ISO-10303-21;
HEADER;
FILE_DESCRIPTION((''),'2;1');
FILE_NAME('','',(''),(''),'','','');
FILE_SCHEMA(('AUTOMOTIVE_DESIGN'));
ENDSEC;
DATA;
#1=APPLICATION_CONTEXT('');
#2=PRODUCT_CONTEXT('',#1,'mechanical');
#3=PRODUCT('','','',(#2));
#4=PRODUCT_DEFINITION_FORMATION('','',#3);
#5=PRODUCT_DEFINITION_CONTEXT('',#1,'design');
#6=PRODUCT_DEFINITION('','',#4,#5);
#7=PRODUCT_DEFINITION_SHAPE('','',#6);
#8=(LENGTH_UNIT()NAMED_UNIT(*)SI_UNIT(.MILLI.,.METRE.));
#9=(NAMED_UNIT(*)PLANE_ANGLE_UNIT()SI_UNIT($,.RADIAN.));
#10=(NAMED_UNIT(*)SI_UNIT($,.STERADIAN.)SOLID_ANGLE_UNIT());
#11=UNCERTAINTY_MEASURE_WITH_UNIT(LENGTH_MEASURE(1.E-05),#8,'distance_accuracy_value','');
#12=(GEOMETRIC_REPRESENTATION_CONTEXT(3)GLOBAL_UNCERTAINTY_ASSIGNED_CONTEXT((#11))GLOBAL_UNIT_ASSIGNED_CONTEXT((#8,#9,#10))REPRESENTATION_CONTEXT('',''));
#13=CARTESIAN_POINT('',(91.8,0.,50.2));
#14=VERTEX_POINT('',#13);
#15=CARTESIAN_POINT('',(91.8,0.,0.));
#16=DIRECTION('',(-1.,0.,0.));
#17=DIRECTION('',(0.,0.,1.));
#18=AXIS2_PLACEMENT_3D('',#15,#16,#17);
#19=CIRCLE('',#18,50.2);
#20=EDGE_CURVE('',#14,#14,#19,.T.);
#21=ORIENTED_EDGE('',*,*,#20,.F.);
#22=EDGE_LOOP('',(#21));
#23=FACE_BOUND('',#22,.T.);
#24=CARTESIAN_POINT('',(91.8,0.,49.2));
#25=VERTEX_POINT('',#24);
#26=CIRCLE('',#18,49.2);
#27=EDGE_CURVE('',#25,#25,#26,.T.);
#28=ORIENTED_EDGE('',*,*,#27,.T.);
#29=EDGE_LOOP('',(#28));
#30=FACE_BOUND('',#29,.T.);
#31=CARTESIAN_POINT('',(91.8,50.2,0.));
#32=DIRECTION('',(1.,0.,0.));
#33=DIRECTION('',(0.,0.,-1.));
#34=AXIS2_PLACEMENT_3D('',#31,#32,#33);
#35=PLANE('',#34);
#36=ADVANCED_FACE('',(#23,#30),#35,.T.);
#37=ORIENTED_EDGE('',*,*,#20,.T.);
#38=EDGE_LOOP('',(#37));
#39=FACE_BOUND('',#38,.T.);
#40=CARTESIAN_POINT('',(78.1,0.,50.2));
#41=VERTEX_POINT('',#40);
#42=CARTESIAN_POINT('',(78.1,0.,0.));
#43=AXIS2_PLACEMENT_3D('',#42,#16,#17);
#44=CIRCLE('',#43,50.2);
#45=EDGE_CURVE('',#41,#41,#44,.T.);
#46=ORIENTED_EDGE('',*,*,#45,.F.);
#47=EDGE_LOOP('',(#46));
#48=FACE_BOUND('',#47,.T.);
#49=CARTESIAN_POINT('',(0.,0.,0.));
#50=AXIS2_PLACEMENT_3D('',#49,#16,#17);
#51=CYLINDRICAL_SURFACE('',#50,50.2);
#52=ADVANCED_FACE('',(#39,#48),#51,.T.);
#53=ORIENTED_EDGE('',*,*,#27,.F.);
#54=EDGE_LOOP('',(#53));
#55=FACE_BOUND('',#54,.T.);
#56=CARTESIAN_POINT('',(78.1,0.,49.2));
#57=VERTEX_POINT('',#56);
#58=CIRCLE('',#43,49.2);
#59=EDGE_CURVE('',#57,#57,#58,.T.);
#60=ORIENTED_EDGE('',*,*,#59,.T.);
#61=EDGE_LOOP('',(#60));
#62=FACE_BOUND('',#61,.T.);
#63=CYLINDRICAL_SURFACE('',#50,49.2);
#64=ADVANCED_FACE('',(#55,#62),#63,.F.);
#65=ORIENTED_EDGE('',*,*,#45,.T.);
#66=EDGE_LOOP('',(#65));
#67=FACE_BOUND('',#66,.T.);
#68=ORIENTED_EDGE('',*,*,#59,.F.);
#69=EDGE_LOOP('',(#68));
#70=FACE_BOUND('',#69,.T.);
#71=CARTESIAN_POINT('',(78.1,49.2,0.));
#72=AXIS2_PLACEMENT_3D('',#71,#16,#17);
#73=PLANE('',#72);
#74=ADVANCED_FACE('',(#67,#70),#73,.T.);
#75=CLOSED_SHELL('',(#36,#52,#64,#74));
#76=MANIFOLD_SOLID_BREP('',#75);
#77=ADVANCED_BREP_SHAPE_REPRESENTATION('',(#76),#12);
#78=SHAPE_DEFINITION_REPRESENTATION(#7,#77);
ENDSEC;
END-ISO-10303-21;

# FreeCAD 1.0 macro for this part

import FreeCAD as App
import Part
import Sketcher
from FreeCAD import Vector

doc = App.newDocument("Part")
body = doc.addObject("PartDesign::Body", "Body")

sketch1 = body.newObject("Sketcher::SketchObject", "Sketch")
sketch1.AttachmentSupport = (doc.getObject("XY_Plane"), [""])
sketch1.MapMode = "FlatFace"
sketch1.addGeometry([
    Part.LineSegment(Vector(78.1, 50.2, 0), Vector(78.1, 49.2, 0)),
    Part.LineSegment(Vector(78.1, 49.2, 0), Vector(91.8, 49.2, 0)),
    Part.LineSegment(Vector(91.8, 49.2, 0), Vector(91.8, 50.2, 0)),
    Part.LineSegment(Vector(91.8, 50.2, 0), Vector(78.1, 50.2, 0)),
], False)
sketch1.addConstraint([
    Sketcher.Constraint("Coincident", 0, 2, 1, 1),
    Sketcher.Constraint("Coincident", 1, 2, 2, 1),
    Sketcher.Constraint("Coincident", 2, 2, 3, 1),
    Sketcher.Constraint("Coincident", 3, 2, 0, 1),
    Sketcher.Constraint("Vertical", 0),
    Sketcher.Constraint("Horizontal", 1),
    Sketcher.Constraint("Vertical", 2),
    Sketcher.Constraint("Horizontal", 3),
    Sketcher.Constraint("DistanceY", 0, 2, 0, 1, 1.0),
    Sketcher.Constraint("DistanceX", 1, 1, 1, 2, 13.7),
    Sketcher.Constraint("DistanceX", -1, 1, 0, 2, 78.1),
    Sketcher.Constraint("DistanceY", -1, 1, 0, 2, 49.2),
])
revolution = body.newObject("PartDesign::Revolution", "Revolution")
revolution.Profile = sketch1
revolution.ReferenceAxis = (sketch1, ["H_Axis"])
revolution.Angle = 360

doc.recompute()
